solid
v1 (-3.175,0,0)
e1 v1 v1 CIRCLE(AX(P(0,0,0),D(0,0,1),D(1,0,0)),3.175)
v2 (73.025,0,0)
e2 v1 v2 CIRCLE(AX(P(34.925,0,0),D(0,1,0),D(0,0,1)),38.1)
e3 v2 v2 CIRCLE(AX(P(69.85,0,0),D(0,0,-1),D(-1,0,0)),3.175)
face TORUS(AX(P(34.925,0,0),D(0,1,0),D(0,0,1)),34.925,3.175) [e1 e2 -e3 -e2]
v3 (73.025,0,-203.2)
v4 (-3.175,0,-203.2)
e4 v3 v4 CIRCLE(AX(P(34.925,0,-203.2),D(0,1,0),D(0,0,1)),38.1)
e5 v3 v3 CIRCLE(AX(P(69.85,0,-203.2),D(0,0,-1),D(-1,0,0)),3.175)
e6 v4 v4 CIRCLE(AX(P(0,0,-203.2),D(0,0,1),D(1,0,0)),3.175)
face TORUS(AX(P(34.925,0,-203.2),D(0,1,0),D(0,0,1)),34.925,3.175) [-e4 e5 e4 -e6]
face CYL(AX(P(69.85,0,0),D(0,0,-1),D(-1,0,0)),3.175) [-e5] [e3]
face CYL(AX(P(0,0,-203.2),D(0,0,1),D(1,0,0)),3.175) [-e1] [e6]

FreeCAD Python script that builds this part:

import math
import FreeCAD as App
import Part
import Sketcher
from FreeCAD import Vector
Q = App.Units.Quantity

doc = App.newDocument("Part")
params = doc.addObject("Spreadsheet::Sheet", "Params")
for row, (alias, value) in enumerate([
    ("sketch1_diameter", "0.25 in"),
    ("sketch2_height", "8 in"),
    ("sketch2_radius", "1.375 in"),
], start=1):
    params.set(f"A{row}", alias)
    params.set(f"B{row}", "=" + value)
    params.setAlias(f"B{row}", alias)

body = doc.addObject("PartDesign::Body", "Body")

# Sketch on XY plane
sketch1 = body.newObject("Sketcher::SketchObject", "Sketch")
sketch1.AttachmentSupport = (doc.getObject("XY_Plane"), [""])
sketch1.MapMode = "FlatFace"
sketch1.addGeometry(Part.Circle(Vector(0, 0, 0), Vector(0, 0, 1), 3.175), False)
sketch1.addConstraint(Sketcher.Constraint("Coincident", 0, 3, -1, 1))
sketch1.addConstraint(Sketcher.Constraint("Diameter", 0, Q("0.25 in")))
sketch1.setExpression("Constraints[1]", "Params.sketch1_diameter")

# Sketch on XZ plane
sketch2 = body.newObject("Sketcher::SketchObject", "Sketch001")
sketch2.AttachmentSupport = (doc.getObject("XZ_Plane"), [""])
sketch2.MapMode = "FlatFace"
sketch2.addGeometry(Part.LineSegment(Vector(0, 0, 0), Vector(0, -203.2, 0)), False)
sketch2.addGeometry(Part.ArcOfCircle(Part.Circle(Vector(34.925, -203.2, 0), Vector(0, 0, 1), 34.925), math.radians(180), math.radians(360)), False)
sketch2.addGeometry(Part.LineSegment(Vector(69.85, -203.2, 0), Vector(69.85, 0, 0)), False)
sketch2.addGeometry(Part.ArcOfCircle(Part.Circle(Vector(34.925, 0, 0), Vector(0, 0, 1), 34.925), math.radians(0), math.radians(180)), False)
sketch2.addConstraint(Sketcher.Constraint("Tangent", 0, 2, 1, 1))
sketch2.addConstraint(Sketcher.Constraint("Tangent", 1, 2, 2, 1))
sketch2.addConstraint(Sketcher.Constraint("Tangent", 2, 2, 3, 1))
sketch2.addConstraint(Sketcher.Constraint("Tangent", 3, 2, 0, 1))
sketch2.addConstraint(Sketcher.Constraint("Vertical", 0))
sketch2.addConstraint(Sketcher.Constraint("Vertical", 2))
sketch2.addConstraint(Sketcher.Constraint("Coincident", 3, 2, -1, 1))
sketch2.addConstraint(Sketcher.Constraint("DistanceY", 0, 2, 0, 1, Q("8 in")))
sketch2.addConstraint(Sketcher.Constraint("Radius", 1, Q("1.375 in")))
sketch2.setExpression("Constraints[7]", "Params.sketch2_height")
sketch2.setExpression("Constraints[8]", "Params.sketch2_radius")
doc.recompute()

additivepipe = body.newObject("PartDesign::AdditivePipe", "AdditivePipe")
additivepipe.Profile = sketch1
additivepipe.Spine = (sketch2, ["Edge1", "Edge2", "Edge3", "Edge4"])

doc.recompute()
